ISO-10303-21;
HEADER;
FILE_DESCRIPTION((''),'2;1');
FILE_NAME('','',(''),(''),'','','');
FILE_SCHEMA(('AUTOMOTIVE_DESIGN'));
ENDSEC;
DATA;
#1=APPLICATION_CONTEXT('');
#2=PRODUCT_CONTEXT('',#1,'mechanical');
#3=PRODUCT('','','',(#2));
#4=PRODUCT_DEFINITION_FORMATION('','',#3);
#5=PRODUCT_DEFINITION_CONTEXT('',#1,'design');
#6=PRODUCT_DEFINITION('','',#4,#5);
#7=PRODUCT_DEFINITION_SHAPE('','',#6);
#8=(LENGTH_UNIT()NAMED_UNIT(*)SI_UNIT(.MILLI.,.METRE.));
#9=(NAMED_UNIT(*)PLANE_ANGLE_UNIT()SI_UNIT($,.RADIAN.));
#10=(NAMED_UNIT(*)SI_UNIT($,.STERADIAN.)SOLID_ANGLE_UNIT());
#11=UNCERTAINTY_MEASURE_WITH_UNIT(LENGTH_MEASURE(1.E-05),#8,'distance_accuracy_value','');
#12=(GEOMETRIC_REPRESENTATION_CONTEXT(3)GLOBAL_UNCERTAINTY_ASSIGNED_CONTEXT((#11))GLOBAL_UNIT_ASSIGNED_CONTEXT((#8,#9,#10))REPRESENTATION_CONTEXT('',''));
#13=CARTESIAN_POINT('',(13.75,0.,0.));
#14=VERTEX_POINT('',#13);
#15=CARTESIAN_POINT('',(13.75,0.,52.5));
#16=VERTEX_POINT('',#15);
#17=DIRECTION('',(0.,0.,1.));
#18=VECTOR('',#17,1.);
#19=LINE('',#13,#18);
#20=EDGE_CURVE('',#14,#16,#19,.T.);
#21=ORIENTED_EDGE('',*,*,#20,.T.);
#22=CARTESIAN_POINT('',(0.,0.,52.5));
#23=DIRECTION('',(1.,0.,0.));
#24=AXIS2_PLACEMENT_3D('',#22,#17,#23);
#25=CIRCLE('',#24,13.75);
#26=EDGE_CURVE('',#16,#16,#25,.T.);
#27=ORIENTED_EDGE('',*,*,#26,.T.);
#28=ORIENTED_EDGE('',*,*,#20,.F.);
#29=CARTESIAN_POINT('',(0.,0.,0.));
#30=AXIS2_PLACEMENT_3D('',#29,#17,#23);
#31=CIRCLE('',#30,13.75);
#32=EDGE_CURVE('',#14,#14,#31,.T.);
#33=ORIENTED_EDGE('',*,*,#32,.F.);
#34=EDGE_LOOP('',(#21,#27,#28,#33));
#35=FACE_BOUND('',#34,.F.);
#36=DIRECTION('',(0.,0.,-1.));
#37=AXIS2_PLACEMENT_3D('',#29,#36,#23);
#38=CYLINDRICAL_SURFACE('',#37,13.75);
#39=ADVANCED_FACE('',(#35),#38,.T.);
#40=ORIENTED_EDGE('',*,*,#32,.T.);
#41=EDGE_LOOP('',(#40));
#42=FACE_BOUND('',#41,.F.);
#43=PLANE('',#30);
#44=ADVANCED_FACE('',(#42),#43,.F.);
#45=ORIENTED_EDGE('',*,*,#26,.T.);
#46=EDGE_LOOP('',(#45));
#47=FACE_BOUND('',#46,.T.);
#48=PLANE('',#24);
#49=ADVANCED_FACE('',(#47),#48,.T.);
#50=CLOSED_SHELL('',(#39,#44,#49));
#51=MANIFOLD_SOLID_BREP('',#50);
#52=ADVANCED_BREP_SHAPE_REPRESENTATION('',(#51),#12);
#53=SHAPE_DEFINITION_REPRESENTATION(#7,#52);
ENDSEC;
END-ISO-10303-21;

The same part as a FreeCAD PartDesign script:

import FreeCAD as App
import Part
import Sketcher

V = App.Vector
Q = App.Units.Quantity

doc = App.newDocument("Part")
body = doc.addObject("PartDesign::Body", "Body")

sketch1 = doc.addObject("Sketcher::SketchObject", "Sketch")
body.addObject(sketch1)
sketch1.AttachmentSupport = (doc.XY_Plane, [""])
sketch1.MapMode = "FlatFace"
sketch1.addGeometry(Part.Circle(V(0, 0, 0), V(0, 0, 1), 13.75), False)
sketch1.addConstraint(Sketcher.Constraint("Coincident", 0, 3, -1, 1))
sketch1.addConstraint(Sketcher.Constraint("Diameter", 0, Q("27.5 mm")))
pad1 = doc.addObject("PartDesign::Pad", "Pad")
body.addObject(pad1)
pad1.Profile = sketch1
pad1.Length = 52.5

doc.recompute()
